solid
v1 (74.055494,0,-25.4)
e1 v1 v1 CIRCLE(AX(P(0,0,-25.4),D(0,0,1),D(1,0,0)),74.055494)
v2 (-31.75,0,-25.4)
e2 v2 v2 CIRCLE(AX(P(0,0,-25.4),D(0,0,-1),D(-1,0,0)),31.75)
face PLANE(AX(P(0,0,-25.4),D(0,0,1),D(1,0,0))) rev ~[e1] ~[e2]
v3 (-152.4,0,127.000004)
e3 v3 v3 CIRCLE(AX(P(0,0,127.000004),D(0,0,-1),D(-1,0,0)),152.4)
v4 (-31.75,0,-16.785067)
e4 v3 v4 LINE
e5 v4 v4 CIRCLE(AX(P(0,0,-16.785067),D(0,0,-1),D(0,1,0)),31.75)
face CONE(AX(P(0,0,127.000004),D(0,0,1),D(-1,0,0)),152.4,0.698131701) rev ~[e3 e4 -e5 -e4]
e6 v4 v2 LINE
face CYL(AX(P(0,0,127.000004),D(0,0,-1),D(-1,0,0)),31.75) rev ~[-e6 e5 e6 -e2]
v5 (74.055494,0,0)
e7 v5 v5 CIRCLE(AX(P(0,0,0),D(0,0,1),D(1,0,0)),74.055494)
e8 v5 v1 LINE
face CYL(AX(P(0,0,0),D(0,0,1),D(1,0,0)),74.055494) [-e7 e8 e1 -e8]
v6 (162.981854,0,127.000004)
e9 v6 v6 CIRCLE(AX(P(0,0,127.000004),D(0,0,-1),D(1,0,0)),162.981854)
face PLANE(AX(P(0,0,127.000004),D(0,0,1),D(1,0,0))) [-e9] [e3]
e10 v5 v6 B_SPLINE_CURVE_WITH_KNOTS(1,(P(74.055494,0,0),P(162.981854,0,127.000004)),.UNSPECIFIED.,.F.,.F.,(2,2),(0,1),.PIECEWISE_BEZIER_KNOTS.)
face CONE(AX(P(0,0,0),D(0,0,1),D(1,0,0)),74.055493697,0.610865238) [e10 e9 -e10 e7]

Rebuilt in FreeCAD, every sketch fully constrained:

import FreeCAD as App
import Part
import Sketcher

V = App.Vector
Q = App.Units.Quantity

doc = App.newDocument("Part")
body = doc.addObject("PartDesign::Body", "Body")

sketch1 = body.newObject("Sketcher::SketchObject", "Sketch")
sketch1.AttachmentSupport = (doc.getObject("XY_Plane"), [""])
sketch1.MapMode = "FlatFace"
sketch1.addGeometry(Part.Circle(V(0, 0, 0), V(0, 0, 1), 74), False)
sketch1.addConstraint([
    Sketcher.Constraint("Coincident", 0, 3, -1, 1),
    Sketcher.Constraint("Diameter", 0, Q("148.110987 mm")),
])
pad1 = body.newObject("PartDesign::Pad", "Pad")
pad1.Profile = sketch1
pad1.Length = Q("5.0000002 in")
pad1.TaperAngle = 35
pad2 = body.newObject("PartDesign::Pad", "Pad001")
pad2.Profile = sketch1
pad2.Length = Q("1 in")
pad2.Reversed = True

sketch2 = body.newObject("Sketcher::SketchObject", "Sketch001")
sketch2.AttachmentSupport = (doc.getObject("XY_Plane"), [""])
sketch2.MapMode = "FlatFace"
sketch2.AttachmentOffset = App.Placement(V(0, 0, 5.0000002 * 25.4), App.Rotation())
sketch2.addGeometry(Part.Circle(V(0, 0, 0), V(0, 0, 1), 32), False)
sketch2.addConstraint([
    Sketcher.Constraint("Coincident", 0, 3, -1, 1),
    Sketcher.Constraint("Diameter", 0, Q("2.5 in")),
])
doc.recompute()
hole = body.newObject("PartDesign::Hole", "Hole")
hole.Profile = sketch2
hole.ThreadType = "None"
hole.Diameter = Q("2.5 in")
hole.DepthType = "ThroughAll"
hole.HoleCutType = "Countersink"
hole.HoleCutDiameter = Q("12 in")
hole.HoleCutCountersinkAngle = 80

doc.recompute()
